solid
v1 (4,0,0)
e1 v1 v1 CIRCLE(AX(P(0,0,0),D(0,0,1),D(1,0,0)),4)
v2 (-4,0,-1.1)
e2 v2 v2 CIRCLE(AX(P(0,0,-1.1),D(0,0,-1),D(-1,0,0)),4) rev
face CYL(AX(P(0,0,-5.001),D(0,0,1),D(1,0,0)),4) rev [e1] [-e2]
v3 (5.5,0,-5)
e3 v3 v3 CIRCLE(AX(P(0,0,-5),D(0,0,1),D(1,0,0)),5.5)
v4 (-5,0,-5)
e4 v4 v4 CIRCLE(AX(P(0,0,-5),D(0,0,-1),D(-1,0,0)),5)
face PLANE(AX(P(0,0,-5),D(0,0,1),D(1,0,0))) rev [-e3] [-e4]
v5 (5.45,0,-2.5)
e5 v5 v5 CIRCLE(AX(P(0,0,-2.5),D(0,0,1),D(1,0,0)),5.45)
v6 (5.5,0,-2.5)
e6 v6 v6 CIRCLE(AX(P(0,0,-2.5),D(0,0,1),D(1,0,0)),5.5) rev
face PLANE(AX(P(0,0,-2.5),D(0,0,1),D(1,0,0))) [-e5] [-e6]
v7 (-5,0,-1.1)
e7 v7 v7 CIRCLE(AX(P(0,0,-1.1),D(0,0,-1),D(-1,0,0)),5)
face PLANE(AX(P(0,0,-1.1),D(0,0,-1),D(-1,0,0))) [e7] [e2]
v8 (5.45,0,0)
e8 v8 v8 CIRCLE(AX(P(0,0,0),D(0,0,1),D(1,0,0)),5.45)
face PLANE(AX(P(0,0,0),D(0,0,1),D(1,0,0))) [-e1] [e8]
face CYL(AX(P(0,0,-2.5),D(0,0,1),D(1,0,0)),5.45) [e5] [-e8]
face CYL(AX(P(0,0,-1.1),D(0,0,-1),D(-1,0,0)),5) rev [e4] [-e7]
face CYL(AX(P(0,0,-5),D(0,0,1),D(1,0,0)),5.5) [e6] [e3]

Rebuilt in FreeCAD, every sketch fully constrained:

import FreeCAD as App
import Part
import Sketcher
from FreeCAD import Vector
Q = App.Units.Quantity

doc = App.newDocument("Part")
body = doc.addObject("PartDesign::Body", "Body")

# Sketch on XY plane
sketch1 = body.newObject("Sketcher::SketchObject", "Sketch")
sketch1.AttachmentSupport = (doc.getObject("XY_Plane"), [""])
sketch1.MapMode = "FlatFace"
sketch1.addGeometry(Part.Circle(Vector(0, 0, 0), Vector(0, 0, 1), 5.5), False)
sketch1.addConstraint([
    Sketcher.Constraint("Coincident", 0, 3, -1, 1),
    Sketcher.Constraint("Diameter", 0, Q("11 mm")),
])
pad1 = body.newObject("PartDesign::Pad", "Pad")
pad1.Profile = sketch1
pad1.Length = 5
pad1.Reversed = True

# Sketch on XY plane
sketch2 = body.newObject("Sketcher::SketchObject", "Sketch001")
sketch2.AttachmentSupport = (doc.getObject("XY_Plane"), [""])
sketch2.MapMode = "FlatFace"
sketch2.AttachmentOffset = App.Placement(Vector(0, 0, -5), App.Rotation())
sketch2.addGeometry(Part.Circle(Vector(0, 0, 0), Vector(0, 0, 1), 5), False)
sketch2.addConstraint([
    Sketcher.Constraint("Coincident", 0, 3, -1, 1),
    Sketcher.Constraint("Diameter", 0, Q("10 mm")),
])
pocket1 = body.newObject("PartDesign::Pocket", "Pocket")
pocket1.Profile = sketch2
pocket1.Length = 3.9
pocket1.Reversed = True

# Sketch on XY plane
sketch3 = body.newObject("Sketcher::SketchObject", "Sketch002")
sketch3.AttachmentSupport = (doc.getObject("XY_Plane"), [""])
sketch3.MapMode = "FlatFace"
sketch3.addGeometry(Part.Circle(Vector(0, 0, 0), Vector(0, 0, 1), 4), False)
sketch3.addConstraint([
    Sketcher.Constraint("Coincident", 0, 3, -1, 1),
    Sketcher.Constraint("Diameter", 0, Q("8 mm")),
])
pocket2 = body.newObject("PartDesign::Pocket", "Pocket001")
pocket2.Profile = sketch3
pocket2.Type = "UpToFirst"

# Sketch on XY plane
sketch4 = body.newObject("Sketcher::SketchObject", "Sketch003")
sketch4.AttachmentSupport = (doc.getObject("XY_Plane"), [""])
sketch4.MapMode = "FlatFace"
sketch4.addGeometry([
    Part.LineSegment(Vector(-8.134, 8.134, 0), Vector(-8.134, -8.134, 0)),  # 0
    Part.LineSegment(Vector(-8.134, -8.134, 0), Vector(8.134, -8.134, 0)),  # 1
    Part.LineSegment(Vector(8.134, -8.134, 0), Vector(8.134, 8.134, 0)),  # 2
    Part.LineSegment(Vector(8.134, 8.134, 0), Vector(-8.134, 8.134, 0)),  # 3
    Part.Circle(Vector(0, 0, 0), Vector(0, 0, 1), 5.45),  # 4
], False)
sketch4.addConstraint([
    Sketcher.Constraint("Coincident", 0, 2, 1, 1),
    Sketcher.Constraint("Coincident", 1, 2, 2, 1),
    Sketcher.Constraint("Coincident", 2, 2, 3, 1),
    Sketcher.Constraint("Coincident", 3, 2, 0, 1),
    Sketcher.Constraint("Vertical", 0),
    Sketcher.Constraint("Horizontal", 1),
    Sketcher.Constraint("Vertical", 2),
    Sketcher.Constraint("Horizontal", 3),
    Sketcher.Constraint("Coincident", 4, 3, -1, 1),
    Sketcher.Constraint("Symmetric", 0, 2, 2, 2, -1, 1),
    Sketcher.Constraint("Equal", 3, 0),
    Sketcher.Constraint("Diameter", 4, Q("10.9 mm")),
    Sketcher.Constraint("DistanceX", 1, 1, 1, 2, Q("16.268 mm")),
])
pocket3 = body.newObject("PartDesign::Pocket", "Pocket002")
pocket3.Profile = sketch4
pocket3.Length = 2.5

doc.recompute()
